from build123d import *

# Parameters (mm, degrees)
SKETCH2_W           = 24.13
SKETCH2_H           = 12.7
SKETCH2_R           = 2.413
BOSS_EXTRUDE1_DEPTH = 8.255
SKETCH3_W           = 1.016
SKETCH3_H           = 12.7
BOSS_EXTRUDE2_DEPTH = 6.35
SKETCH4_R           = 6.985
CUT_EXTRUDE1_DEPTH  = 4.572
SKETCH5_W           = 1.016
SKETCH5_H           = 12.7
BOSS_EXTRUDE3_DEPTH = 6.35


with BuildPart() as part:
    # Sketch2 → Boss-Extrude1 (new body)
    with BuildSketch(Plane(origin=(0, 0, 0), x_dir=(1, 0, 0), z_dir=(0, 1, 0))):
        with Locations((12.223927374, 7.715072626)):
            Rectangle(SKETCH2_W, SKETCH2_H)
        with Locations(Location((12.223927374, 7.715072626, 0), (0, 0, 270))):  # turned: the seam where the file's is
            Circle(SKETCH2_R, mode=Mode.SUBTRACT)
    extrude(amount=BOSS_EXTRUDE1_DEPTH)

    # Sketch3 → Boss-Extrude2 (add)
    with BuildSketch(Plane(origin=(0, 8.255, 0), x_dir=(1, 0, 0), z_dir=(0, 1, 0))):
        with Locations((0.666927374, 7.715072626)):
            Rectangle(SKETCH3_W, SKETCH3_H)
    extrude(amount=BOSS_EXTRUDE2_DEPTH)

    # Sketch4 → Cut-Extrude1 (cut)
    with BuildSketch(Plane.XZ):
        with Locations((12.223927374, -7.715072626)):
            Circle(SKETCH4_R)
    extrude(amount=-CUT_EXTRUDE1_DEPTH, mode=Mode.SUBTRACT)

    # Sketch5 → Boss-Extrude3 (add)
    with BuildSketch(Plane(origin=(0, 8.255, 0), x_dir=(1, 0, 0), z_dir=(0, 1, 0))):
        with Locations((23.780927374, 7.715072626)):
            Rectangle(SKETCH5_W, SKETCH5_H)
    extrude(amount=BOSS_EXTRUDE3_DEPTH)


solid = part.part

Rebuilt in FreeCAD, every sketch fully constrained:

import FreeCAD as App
import Part
import Sketcher

V = App.Vector
Q = App.Units.Quantity

doc = App.newDocument("Part")
body = doc.addObject("PartDesign::Body", "Body")

# Sketch on XZ plane
sketch1 = doc.addObject("Sketcher::SketchObject", "Sketch")
body.addObject(sketch1)
sketch1.AttachmentSupport = (doc.XZ_Plane, [""])
sketch1.MapMode = "FlatFace"
sketch1.addGeometry([
    Part.LineSegment(V(0.2, -14.1, 0), V(0.2, -1.4, 0)),  # 0
    Part.LineSegment(V(0.2, -1.4, 0), V(24.3, -1.4, 0)),  # 1
    Part.LineSegment(V(24.3, -1.4, 0), V(24.3, -14.1, 0)),  # 2
    Part.LineSegment(V(24.3, -14.1, 0), V(0.2, -14.1, 0)),  # 3
    Part.Circle(V(12.2, -7.7, 0), V(0, 0, 1), 2.4),  # 4
], False)
sketch1.addConstraint([
    Sketcher.Constraint("Coincident", 0, 2, 1, 1),
    Sketcher.Constraint("Coincident", 1, 2, 2, 1),
    Sketcher.Constraint("Coincident", 2, 2, 3, 1),
    Sketcher.Constraint("Coincident", 3, 2, 0, 1),
    Sketcher.Constraint("Vertical", 0),
    Sketcher.Constraint("Horizontal", 1),
    Sketcher.Constraint("Vertical", 2),
    Sketcher.Constraint("Horizontal", 3),
    Sketcher.Constraint("Diameter", 4, Q("0.19 in")),
    Sketcher.Constraint("DistanceY", 0, 1, 0, 2, Q("0.5 in")),
    Sketcher.Constraint("DistanceX", 1, 1, 1, 2, Q("0.95 in")),
    Sketcher.Constraint("DistanceY", 4, 3, 0, 2, Q("0.25 in")),
    Sketcher.Constraint("DistanceX", 0, 2, 4, 3, Q("0.475 in")),
    Sketcher.Constraint("DistanceX", -1, 1, 4, 3, Q("12.223927 mm")),
    Sketcher.Constraint("DistanceY", 4, 3, -1, 1, Q("7.715073 mm")),
])
pad1 = doc.addObject("PartDesign::Pad", "Pad")
body.addObject(pad1)
pad1.Profile = sketch1
pad1.Length = Q("0.325 in")
pad1.Reversed = True

# Sketch on XZ plane
sketch2 = doc.addObject("Sketcher::SketchObject", "Sketch001")
body.addObject(sketch2)
sketch2.AttachmentSupport = (doc.XZ_Plane, [""])
sketch2.MapMode = "FlatFace"
sketch2.AttachmentOffset = App.Placement(V(0, 0, -0.325 * 25.4), App.Rotation())
sketch2.addGeometry([
    Part.LineSegment(V(0.2, -14.1, 0), V(0.2, -1.4, 0)),
    Part.LineSegment(V(0.2, -1.4, 0), V(1.2, -1.4, 0)),
    Part.LineSegment(V(1.2, -1.4, 0), V(1.2, -14.1, 0)),
    Part.LineSegment(V(1.2, -14.1, 0), V(0.2, -14.1, 0)),
], False)
sketch2.addConstraint([
    Sketcher.Constraint("Coincident", 0, 2, 1, 1),
    Sketcher.Constraint("Coincident", 1, 2, 2, 1),
    Sketcher.Constraint("Coincident", 2, 2, 3, 1),
    Sketcher.Constraint("Coincident", 3, 2, 0, 1),
    Sketcher.Constraint("Vertical", 0),
    Sketcher.Constraint("Horizontal", 1),
    Sketcher.Constraint("Vertical", 2),
    Sketcher.Constraint("Horizontal", 3),
    Sketcher.Constraint("DistanceY", 0, 1, 0, 2, Q("0.5 in")),
    Sketcher.Constraint("DistanceX", 1, 1, 1, 2, Q("0.04 in")),
    Sketcher.Constraint("DistanceX", -1, 1, 0, 2, Q("0.158927 mm")),
    Sketcher.Constraint("DistanceY", 0, 2, -1, 1, Q("1.365073 mm")),
])
pad2 = doc.addObject("PartDesign::Pad", "Pad001")
body.addObject(pad2)
pad2.Profile = sketch2
pad2.Length = Q("0.25 in")
pad2.Reversed = True

# Sketch on XZ plane
sketch3 = doc.addObject("Sketcher::SketchObject", "Sketch002")
body.addObject(sketch3)
sketch3.AttachmentSupport = (doc.XZ_Plane, [""])
sketch3.MapMode = "FlatFace"
sketch3.addGeometry(Part.Circle(V(12, -8, 0), V(0, 0, 1), 7), False)
sketch3.addConstraint([
    Sketcher.Constraint("Diameter", 0, Q("0.55 in")),
    Sketcher.Constraint("DistanceX", -1, 1, 0, 3, Q("12.223927 mm")),
    Sketcher.Constraint("DistanceY", 0, 3, -1, 1, Q("7.715073 mm")),
])
pocket1 = doc.addObject("PartDesign::Pocket", "Pocket")
body.addObject(pocket1)
pocket1.Profile = sketch3
pocket1.Length = Q("0.18 in")

# Sketch on XZ plane
sketch4 = doc.addObject("Sketcher::SketchObject", "Sketch003")
body.addObject(sketch4)
sketch4.AttachmentSupport = (doc.XZ_Plane, [""])
sketch4.MapMode = "FlatFace"
sketch4.AttachmentOffset = App.Placement(V(0, 0, -0.325 * 25.4), App.Rotation())
sketch4.addGeometry([
    Part.LineSegment(V(23.3, -14.1, 0), V(23.3, -1.4, 0)),
    Part.LineSegment(V(23.3, -1.4, 0), V(24.3, -1.4, 0)),
    Part.LineSegment(V(24.3, -1.4, 0), V(24.3, -14.1, 0)),
    Part.LineSegment(V(24.3, -14.1, 0), V(23.3, -14.1, 0)),
], False)
sketch4.addConstraint([
    Sketcher.Constraint("Coincident", 0, 2, 1, 1),
    Sketcher.Constraint("Coincident", 1, 2, 2, 1),
    Sketcher.Constraint("Coincident", 2, 2, 3, 1),
    Sketcher.Constraint("Coincident", 3, 2, 0, 1),
    Sketcher.Constraint("Vertical", 0),
    Sketcher.Constraint("Horizontal", 1),
    Sketcher.Constraint("Vertical", 2),
    Sketcher.Constraint("Horizontal", 3),
    Sketcher.Constraint("DistanceY", 0, 1, 0, 2, Q("0.5 in")),
    Sketcher.Constraint("DistanceX", 1, 1, 1, 2, Q("0.04 in")),
    Sketcher.Constraint("DistanceX", -1, 1, 0, 2, Q("23.272927 mm")),
    Sketcher.Constraint("DistanceY", 0, 2, -1, 1, Q("1.365073 mm")),
])
pad3 = doc.addObject("PartDesign::Pad", "Pad002")
body.addObject(pad3)
pad3.Profile = sketch4
pad3.Length = Q("0.25 in")
pad3.Reversed = True

doc.recompute()
